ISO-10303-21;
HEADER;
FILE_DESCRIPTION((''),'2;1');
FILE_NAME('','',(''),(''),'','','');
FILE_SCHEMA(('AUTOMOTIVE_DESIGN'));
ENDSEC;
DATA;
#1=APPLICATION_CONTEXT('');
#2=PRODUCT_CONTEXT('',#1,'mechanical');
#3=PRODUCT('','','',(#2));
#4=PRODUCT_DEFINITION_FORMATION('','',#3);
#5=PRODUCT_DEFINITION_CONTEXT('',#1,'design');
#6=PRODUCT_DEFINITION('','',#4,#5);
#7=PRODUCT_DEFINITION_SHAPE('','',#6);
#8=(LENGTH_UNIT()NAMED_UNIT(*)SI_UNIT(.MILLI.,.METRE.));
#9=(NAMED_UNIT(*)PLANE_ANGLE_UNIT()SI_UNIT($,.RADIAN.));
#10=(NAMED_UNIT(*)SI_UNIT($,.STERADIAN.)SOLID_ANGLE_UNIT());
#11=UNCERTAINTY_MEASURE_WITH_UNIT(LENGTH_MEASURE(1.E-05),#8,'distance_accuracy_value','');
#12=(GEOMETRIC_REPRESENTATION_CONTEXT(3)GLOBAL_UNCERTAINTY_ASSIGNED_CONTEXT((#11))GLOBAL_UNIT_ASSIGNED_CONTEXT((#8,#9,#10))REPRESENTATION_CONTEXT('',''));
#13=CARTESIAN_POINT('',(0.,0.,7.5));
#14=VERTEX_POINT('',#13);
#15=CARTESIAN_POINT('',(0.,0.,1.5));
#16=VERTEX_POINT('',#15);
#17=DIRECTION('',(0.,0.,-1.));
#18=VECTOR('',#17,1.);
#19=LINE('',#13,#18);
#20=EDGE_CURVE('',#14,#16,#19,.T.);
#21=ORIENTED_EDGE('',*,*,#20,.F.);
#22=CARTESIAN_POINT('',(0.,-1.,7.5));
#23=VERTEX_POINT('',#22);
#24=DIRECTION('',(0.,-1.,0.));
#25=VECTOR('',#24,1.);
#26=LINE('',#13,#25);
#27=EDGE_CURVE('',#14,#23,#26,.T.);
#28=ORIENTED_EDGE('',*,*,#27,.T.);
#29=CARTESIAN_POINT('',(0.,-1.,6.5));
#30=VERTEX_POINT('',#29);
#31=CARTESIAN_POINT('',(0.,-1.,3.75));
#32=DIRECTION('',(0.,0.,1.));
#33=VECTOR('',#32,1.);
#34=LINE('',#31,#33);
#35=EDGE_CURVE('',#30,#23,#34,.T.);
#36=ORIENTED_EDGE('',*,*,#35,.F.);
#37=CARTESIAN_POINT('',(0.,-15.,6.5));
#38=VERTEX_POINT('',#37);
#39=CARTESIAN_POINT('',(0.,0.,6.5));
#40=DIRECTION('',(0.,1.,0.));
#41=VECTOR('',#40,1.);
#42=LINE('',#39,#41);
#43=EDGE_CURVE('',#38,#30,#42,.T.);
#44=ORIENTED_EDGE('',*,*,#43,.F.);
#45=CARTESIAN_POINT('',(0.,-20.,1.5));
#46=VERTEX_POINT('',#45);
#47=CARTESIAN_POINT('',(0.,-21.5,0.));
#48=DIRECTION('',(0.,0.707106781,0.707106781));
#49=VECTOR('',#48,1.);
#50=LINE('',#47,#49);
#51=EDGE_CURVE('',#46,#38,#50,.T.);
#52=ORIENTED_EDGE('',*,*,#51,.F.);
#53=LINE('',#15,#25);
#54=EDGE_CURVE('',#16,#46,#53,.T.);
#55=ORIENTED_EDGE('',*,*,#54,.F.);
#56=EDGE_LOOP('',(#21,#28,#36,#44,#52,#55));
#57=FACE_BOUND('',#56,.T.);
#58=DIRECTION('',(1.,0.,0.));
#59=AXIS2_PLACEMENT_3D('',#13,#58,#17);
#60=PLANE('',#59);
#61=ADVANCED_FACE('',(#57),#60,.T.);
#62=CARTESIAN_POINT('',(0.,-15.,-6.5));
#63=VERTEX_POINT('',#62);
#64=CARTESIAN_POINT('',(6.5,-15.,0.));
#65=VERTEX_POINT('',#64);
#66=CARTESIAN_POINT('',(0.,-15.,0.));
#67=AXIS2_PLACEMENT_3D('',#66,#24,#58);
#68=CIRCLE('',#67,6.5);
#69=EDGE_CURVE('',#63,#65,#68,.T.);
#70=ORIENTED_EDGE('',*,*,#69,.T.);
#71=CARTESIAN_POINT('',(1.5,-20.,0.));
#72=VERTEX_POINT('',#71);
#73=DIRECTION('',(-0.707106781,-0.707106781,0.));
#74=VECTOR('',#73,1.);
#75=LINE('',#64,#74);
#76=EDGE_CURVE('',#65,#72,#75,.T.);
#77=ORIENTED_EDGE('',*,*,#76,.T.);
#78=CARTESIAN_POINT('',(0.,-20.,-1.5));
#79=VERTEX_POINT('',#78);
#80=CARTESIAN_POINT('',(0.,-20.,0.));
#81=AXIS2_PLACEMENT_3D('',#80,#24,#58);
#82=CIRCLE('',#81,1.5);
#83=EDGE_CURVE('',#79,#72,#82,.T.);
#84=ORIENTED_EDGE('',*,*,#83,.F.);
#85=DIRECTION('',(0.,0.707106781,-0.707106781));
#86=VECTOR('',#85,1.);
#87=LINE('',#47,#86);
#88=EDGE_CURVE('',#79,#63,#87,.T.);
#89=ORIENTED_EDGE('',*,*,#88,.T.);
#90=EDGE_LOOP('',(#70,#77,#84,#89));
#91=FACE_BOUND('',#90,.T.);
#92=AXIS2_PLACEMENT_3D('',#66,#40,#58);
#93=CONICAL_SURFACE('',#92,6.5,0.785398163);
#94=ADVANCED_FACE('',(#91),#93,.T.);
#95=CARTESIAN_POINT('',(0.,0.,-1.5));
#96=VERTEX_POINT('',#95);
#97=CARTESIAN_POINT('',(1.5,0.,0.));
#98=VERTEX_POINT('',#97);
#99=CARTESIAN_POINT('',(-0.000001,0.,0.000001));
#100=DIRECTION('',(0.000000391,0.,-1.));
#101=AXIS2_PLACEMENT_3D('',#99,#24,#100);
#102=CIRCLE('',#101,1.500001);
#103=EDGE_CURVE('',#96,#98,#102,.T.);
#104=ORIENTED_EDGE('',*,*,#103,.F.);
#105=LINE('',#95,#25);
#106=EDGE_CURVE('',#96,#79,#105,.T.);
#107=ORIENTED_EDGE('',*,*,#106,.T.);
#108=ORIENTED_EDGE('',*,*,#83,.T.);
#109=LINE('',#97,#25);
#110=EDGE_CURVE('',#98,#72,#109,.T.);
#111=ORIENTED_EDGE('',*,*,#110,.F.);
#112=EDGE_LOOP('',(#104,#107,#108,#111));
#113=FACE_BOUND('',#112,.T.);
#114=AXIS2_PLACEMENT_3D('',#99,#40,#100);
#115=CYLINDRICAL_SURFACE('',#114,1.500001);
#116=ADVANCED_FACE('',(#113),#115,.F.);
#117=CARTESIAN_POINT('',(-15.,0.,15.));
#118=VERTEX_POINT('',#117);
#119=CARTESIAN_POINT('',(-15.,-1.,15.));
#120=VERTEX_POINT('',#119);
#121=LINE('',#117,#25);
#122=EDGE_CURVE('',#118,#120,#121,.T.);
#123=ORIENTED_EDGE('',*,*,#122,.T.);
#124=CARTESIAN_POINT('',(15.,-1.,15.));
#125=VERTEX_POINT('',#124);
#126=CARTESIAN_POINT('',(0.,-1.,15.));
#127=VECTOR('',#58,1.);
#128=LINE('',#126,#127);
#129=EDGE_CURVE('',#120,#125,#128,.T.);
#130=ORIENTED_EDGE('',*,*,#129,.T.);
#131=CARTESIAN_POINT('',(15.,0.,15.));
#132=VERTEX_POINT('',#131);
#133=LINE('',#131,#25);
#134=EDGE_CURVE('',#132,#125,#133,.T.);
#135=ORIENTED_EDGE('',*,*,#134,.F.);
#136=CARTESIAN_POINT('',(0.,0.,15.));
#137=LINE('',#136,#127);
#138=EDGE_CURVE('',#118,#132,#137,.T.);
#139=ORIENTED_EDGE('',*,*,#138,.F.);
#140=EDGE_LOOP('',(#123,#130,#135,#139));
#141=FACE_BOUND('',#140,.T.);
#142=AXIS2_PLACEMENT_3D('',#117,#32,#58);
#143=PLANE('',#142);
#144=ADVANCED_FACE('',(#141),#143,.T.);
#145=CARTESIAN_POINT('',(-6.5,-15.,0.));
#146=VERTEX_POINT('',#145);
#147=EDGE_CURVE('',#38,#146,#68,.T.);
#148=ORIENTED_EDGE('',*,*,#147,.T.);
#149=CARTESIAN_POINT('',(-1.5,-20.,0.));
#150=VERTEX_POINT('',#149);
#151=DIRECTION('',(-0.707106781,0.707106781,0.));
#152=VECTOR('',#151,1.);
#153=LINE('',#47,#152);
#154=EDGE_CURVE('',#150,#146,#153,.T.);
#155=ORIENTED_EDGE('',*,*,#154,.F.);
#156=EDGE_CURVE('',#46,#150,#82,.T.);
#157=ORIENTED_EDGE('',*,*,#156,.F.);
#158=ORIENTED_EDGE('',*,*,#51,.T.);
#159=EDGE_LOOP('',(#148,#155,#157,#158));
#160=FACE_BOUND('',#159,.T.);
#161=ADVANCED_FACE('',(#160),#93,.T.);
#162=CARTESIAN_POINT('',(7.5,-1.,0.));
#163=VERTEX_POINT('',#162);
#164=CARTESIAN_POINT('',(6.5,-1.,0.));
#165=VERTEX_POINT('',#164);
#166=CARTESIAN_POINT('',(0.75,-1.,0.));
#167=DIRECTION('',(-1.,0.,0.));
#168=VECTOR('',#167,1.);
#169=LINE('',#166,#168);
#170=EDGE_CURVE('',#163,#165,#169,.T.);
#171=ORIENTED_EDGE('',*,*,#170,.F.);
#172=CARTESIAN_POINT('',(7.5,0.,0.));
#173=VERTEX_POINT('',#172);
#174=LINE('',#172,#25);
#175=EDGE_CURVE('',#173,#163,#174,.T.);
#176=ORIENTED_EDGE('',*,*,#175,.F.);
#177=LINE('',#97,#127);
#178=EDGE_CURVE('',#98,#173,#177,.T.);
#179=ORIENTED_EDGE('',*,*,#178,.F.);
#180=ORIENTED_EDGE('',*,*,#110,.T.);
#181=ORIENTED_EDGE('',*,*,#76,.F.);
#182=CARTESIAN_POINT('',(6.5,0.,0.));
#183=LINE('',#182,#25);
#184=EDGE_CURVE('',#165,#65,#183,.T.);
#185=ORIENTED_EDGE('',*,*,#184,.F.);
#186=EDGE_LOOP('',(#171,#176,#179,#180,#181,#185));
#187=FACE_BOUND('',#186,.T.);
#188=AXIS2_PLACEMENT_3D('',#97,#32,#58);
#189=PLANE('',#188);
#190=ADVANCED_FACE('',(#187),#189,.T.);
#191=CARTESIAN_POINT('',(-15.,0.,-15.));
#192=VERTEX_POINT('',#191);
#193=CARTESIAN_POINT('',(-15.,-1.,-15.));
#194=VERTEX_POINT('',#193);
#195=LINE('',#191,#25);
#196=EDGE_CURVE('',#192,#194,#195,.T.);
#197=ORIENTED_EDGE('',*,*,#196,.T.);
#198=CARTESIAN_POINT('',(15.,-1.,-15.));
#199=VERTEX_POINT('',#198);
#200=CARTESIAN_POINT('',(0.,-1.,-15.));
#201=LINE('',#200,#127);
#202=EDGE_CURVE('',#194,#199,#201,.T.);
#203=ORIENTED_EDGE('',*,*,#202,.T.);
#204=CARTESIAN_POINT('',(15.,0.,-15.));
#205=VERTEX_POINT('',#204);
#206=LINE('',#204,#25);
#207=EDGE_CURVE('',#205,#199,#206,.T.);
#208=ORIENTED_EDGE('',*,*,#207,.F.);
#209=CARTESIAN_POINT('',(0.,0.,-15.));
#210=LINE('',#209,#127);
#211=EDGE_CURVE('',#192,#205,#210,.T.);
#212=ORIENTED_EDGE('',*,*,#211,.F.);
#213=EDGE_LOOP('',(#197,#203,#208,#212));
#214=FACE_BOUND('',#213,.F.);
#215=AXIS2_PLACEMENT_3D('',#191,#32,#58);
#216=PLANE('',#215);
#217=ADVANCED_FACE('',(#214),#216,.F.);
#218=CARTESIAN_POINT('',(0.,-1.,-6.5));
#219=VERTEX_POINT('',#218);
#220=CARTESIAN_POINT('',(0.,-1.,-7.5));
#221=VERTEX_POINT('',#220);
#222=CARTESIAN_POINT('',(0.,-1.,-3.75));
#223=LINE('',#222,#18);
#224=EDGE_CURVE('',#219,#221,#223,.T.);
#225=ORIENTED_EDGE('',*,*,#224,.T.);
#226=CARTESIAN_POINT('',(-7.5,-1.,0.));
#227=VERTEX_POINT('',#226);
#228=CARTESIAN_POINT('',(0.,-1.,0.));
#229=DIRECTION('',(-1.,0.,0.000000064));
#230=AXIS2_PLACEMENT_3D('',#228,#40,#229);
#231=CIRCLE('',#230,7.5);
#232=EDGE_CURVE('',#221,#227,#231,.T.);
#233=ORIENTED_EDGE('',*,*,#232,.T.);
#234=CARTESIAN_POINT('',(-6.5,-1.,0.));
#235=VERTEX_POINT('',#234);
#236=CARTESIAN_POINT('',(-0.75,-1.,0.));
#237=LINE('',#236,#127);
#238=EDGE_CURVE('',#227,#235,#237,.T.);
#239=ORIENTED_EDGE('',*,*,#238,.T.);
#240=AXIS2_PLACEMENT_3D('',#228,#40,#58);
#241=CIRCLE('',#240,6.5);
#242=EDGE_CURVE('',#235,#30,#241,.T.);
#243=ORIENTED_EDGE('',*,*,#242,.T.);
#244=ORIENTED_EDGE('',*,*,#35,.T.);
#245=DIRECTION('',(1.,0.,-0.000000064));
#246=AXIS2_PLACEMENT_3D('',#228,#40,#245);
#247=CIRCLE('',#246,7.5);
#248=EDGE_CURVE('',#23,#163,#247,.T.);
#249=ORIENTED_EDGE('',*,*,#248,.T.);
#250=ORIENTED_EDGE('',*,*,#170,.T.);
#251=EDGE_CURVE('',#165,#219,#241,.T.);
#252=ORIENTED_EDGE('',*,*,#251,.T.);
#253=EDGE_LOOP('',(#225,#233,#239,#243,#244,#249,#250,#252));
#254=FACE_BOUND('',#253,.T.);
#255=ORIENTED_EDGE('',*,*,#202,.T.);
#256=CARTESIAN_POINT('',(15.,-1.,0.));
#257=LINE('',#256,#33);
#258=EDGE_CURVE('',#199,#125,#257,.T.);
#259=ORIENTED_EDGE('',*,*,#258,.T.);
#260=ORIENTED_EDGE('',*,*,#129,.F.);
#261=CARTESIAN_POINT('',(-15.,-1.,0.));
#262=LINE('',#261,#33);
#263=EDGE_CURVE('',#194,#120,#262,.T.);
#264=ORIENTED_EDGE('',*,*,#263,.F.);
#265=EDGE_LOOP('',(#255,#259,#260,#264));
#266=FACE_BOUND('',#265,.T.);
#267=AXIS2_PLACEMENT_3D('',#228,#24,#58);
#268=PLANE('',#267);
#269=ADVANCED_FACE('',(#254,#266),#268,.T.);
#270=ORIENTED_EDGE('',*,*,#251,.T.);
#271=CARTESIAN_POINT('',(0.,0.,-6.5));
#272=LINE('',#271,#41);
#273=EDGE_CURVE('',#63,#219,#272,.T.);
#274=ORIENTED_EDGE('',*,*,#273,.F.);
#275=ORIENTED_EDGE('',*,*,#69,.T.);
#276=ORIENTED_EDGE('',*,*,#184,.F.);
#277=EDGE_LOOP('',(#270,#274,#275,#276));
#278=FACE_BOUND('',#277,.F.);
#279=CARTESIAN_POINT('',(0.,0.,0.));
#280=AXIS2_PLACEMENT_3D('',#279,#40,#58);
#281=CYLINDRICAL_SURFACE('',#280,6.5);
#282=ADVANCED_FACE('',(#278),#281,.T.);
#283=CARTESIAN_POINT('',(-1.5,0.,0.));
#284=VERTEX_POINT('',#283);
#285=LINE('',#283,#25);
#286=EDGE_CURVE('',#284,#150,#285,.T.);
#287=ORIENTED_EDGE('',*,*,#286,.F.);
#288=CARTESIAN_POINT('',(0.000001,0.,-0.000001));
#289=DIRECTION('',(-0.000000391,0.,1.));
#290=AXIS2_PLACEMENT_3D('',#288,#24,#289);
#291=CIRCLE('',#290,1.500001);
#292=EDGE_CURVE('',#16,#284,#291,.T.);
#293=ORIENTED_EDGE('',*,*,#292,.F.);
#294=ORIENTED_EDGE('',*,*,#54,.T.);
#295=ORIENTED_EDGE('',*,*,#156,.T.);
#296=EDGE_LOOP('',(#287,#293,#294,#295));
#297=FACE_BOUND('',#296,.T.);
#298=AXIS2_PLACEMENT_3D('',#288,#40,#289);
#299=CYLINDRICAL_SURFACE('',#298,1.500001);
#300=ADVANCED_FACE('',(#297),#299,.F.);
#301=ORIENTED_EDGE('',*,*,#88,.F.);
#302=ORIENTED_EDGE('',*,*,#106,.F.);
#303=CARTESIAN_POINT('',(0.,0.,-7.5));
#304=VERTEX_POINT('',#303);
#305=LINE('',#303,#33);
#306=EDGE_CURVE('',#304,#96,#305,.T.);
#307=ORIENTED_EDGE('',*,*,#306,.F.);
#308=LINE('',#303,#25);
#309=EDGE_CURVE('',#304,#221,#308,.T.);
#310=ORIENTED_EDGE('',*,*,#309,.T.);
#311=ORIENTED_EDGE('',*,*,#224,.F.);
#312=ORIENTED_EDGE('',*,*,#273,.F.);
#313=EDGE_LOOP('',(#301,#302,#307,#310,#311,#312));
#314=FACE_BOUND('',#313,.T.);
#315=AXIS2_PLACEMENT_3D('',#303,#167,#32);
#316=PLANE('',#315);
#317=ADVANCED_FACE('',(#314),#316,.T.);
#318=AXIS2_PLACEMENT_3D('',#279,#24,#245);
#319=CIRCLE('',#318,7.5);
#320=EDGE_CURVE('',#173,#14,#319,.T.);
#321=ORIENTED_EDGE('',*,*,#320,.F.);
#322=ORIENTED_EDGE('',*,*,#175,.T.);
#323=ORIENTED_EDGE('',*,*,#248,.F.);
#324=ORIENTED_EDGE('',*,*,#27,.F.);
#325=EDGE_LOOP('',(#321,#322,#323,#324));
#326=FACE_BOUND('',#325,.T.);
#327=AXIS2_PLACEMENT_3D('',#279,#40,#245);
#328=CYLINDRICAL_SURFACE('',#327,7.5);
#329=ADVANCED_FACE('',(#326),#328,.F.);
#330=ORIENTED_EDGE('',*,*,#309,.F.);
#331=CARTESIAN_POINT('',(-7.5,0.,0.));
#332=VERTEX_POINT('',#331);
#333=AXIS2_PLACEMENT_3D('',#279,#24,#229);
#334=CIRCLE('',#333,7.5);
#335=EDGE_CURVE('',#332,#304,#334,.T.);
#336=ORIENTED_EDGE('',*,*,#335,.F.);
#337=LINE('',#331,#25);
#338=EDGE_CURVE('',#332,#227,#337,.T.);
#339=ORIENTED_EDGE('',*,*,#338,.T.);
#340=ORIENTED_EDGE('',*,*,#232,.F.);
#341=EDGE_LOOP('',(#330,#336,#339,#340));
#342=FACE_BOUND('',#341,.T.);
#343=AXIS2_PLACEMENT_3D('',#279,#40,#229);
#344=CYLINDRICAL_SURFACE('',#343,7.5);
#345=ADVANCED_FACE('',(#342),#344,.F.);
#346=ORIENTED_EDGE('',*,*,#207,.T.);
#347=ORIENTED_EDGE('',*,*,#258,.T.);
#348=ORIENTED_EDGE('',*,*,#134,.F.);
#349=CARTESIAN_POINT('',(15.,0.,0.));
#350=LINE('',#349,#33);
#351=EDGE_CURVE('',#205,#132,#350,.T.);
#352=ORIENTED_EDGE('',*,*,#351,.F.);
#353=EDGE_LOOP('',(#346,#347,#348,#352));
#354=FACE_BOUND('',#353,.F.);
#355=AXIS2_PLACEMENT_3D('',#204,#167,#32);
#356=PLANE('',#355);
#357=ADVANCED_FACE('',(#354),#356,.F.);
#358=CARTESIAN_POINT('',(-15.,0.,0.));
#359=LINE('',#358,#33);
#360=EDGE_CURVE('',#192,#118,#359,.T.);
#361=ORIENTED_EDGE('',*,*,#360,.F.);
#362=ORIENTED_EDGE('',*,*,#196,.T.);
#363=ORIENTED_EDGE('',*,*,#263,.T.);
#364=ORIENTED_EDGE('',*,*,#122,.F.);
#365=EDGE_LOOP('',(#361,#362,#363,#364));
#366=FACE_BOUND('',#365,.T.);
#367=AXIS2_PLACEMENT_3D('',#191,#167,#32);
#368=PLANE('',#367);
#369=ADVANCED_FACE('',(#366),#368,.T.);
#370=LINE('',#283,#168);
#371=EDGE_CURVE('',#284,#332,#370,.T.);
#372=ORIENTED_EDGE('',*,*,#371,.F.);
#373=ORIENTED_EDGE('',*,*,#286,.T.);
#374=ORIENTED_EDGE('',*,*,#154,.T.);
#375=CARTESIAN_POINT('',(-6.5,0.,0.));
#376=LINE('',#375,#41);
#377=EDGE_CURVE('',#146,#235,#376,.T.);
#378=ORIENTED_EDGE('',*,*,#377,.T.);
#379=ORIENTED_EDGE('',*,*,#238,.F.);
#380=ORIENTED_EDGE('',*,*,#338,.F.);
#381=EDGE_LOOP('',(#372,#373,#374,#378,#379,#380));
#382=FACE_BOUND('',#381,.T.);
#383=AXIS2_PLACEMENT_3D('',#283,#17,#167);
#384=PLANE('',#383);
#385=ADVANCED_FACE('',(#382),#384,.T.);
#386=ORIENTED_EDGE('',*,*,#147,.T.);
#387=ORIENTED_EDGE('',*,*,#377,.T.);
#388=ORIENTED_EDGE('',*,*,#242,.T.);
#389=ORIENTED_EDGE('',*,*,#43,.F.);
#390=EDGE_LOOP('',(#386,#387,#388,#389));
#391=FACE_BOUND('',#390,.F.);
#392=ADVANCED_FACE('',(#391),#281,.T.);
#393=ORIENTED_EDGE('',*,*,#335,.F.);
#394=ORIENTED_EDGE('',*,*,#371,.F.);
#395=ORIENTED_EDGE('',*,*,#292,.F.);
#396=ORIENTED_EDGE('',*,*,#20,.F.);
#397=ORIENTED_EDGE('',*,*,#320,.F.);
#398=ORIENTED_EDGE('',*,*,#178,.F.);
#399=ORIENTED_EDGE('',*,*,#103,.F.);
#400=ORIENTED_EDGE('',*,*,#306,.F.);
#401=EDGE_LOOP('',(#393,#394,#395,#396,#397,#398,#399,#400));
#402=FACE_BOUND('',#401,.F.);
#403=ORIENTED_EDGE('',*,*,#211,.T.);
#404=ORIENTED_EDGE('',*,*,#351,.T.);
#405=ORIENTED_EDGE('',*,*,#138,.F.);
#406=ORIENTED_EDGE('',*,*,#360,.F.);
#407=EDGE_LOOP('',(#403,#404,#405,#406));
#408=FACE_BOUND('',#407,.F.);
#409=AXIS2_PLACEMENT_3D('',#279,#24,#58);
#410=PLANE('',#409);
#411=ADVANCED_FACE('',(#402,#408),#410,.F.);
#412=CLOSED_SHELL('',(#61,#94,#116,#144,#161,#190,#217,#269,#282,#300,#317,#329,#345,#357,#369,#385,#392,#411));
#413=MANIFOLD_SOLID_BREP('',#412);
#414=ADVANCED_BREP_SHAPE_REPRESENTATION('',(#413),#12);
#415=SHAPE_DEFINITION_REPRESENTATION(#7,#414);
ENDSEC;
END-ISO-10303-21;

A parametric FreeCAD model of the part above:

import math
import FreeCAD as App
import Part
import Sketcher
from FreeCAD import Vector


def edges_at(feature, points):
    """Names of the edges that pass closest to the given points."""
    edges = feature.Shape.Edges
    near = lambda p: min(range(len(edges)), key=lambda i: edges[i].distToShape(Part.Vertex(*p))[0])
    return sorted({f"Edge{near(p) + 1}" for p in points})


def add_polygon(sketch, points):
    """Adds a closed chain of lines whose ends are joined by coincident constraints."""
    first, n = sketch.GeometryCount, len(points)
    for a, b in zip(points, points[1:] + points[:1]):
        sketch.addGeometry(Part.LineSegment(App.Vector(*a, 0), App.Vector(*b, 0)), False)
    for i in range(n):
        sketch.addConstraint(Sketcher.Constraint("Coincident", first + i, 2, first + (i + 1) % n, 1))

doc = App.newDocument("Part")
body = doc.addObject("PartDesign::Body", "Body")

sketch1 = body.newObject("Sketcher::SketchObject", "Sketch")
sketch1.AttachmentSupport = (doc.getObject("XZ_Plane"), [""])
sketch1.MapMode = "FlatFace"
sketch1.addGeometry(Part.Circle(Vector(0, 0, 0), Vector(0, 0, 1), 6), False)
sketch1.addConstraint(Sketcher.Constraint("Coincident", 0, 3, -1, 1))
sketch1.addConstraint(Sketcher.Constraint("Diameter", 0, 13.0))
pad1 = body.newObject("PartDesign::Pad", "Pad")
pad1.Profile = sketch1
pad1.Length = 20
doc.recompute()

chamfer = body.newObject("PartDesign::Chamfer", "Chamfer")
chamfer.Base = (pad1, edges_at(pad1, [(-6.5, -20, 0)]))
chamfer.Size = 5

sketch2 = body.newObject("Sketcher::SketchObject", "Sketch001")
sketch2.AttachmentSupport = (doc.getObject("XZ_Plane"), [""])
sketch2.MapMode = "FlatFace"
add_polygon(sketch2, [(-15, 15), (-15, -15), (15, -15), (15, 15)])
sketch2.addConstraint(Sketcher.Constraint("Vertical", 0))
sketch2.addConstraint(Sketcher.Constraint("Horizontal", 1))
sketch2.addConstraint(Sketcher.Constraint("Vertical", 2))
sketch2.addConstraint(Sketcher.Constraint("Horizontal", 3))
sketch2.addConstraint(Sketcher.Constraint("Symmetric", 0, 2, 2, 2, -1, 1))
sketch2.addConstraint(Sketcher.Constraint("Equal", 3, 0))
sketch2.addConstraint(Sketcher.Constraint("DistanceX", 1, 1, 1, 2, 30.0))
pad2 = body.newObject("PartDesign::Pad", "Pad001")
pad2.Profile = sketch2
pad2.Length = 1

sketch3 = body.newObject("Sketcher::SketchObject", "Sketch002")
sketch3.AttachmentSupport = (doc.getObject("XZ_Plane"), [""])
sketch3.MapMode = "FlatFace"
sketch3.addGeometry(Part.LineSegment(Vector(-1.5, 0, 0), Vector(-7.5, 0, 0)), False)
sketch3.addGeometry(Part.ArcOfCircle(Part.Circle(Vector(0, 0, 0), Vector(0, 0, 1), 7.5), math.radians(180), math.radians(270)), False)
sketch3.addGeometry(Part.LineSegment(Vector(0, -7.5, 0), Vector(0, -1.5, 0)), False)
sketch3.addGeometry(Part.ArcOfCircle(Part.Circle(Vector(0, 0, 0), Vector(0, 0, 1), 1.5), math.radians(-90), math.radians(0)), False)
sketch3.addGeometry(Part.LineSegment(Vector(1.5, 0, 0), Vector(7.5, 0, 0)), False)
sketch3.addGeometry(Part.ArcOfCircle(Part.Circle(Vector(0, 0, 0), Vector(0, 0, 1), 7.5), math.radians(0), math.radians(90)), False)
sketch3.addGeometry(Part.LineSegment(Vector(0, 7.5, 0), Vector(0, 1.5, 0)), False)
sketch3.addGeometry(Part.ArcOfCircle(Part.Circle(Vector(0, 0, 0), Vector(0, 0, 1), 1.5), math.radians(90), math.radians(180)), False)
sketch3.addConstraint(Sketcher.Constraint("Coincident", 0, 2, 1, 1))
sketch3.addConstraint(Sketcher.Constraint("Coincident", 1, 2, 2, 1))
sketch3.addConstraint(Sketcher.Constraint("Coincident", 2, 2, 3, 1))
sketch3.addConstraint(Sketcher.Constraint("Coincident", 3, 2, 4, 1))
sketch3.addConstraint(Sketcher.Constraint("Coincident", 4, 2, 5, 1))
sketch3.addConstraint(Sketcher.Constraint("Coincident", 5, 2, 6, 1))
sketch3.addConstraint(Sketcher.Constraint("Coincident", 6, 2, 7, 1))
sketch3.addConstraint(Sketcher.Constraint("Coincident", 7, 2, 0, 1))
sketch3.addConstraint(Sketcher.Constraint("Horizontal", 0))
sketch3.addConstraint(Sketcher.Constraint("Vertical", 2))
sketch3.addConstraint(Sketcher.Constraint("Horizontal", 4))
sketch3.addConstraint(Sketcher.Constraint("Vertical", 6))
sketch3.addConstraint(Sketcher.Constraint("Coincident", 1, 3, -1, 1))
sketch3.addConstraint(Sketcher.Constraint("Coincident", 3, 3, -1, 1))
sketch3.addConstraint(Sketcher.Constraint("Coincident", 5, 3, -1, 1))
sketch3.addConstraint(Sketcher.Constraint("Coincident", 7, 3, -1, 1))
sketch3.addConstraint(Sketcher.Constraint("Equal", 1, 5))
sketch3.addConstraint(Sketcher.Constraint("Equal", 3, 7))
sketch3.addConstraint(Sketcher.Constraint("PointOnObject", 0, 2, -1))
sketch3.addConstraint(Sketcher.Constraint("PointOnObject", 1, 2, -2))
sketch3.addConstraint(Sketcher.Constraint("PointOnObject", 3, 2, -1))
sketch3.addConstraint(Sketcher.Constraint("PointOnObject", 5, 2, -2))
sketch3.addConstraint(Sketcher.Constraint("Radius", 1, 7.5))
sketch3.addConstraint(Sketcher.Constraint("Radius", 3, 1.500001))
pocket1 = body.newObject("PartDesign::Pocket", "Pocket")
pocket1.Profile = sketch3
pocket1.Length = 25
pocket1.Reversed = True

doc.recompute()
